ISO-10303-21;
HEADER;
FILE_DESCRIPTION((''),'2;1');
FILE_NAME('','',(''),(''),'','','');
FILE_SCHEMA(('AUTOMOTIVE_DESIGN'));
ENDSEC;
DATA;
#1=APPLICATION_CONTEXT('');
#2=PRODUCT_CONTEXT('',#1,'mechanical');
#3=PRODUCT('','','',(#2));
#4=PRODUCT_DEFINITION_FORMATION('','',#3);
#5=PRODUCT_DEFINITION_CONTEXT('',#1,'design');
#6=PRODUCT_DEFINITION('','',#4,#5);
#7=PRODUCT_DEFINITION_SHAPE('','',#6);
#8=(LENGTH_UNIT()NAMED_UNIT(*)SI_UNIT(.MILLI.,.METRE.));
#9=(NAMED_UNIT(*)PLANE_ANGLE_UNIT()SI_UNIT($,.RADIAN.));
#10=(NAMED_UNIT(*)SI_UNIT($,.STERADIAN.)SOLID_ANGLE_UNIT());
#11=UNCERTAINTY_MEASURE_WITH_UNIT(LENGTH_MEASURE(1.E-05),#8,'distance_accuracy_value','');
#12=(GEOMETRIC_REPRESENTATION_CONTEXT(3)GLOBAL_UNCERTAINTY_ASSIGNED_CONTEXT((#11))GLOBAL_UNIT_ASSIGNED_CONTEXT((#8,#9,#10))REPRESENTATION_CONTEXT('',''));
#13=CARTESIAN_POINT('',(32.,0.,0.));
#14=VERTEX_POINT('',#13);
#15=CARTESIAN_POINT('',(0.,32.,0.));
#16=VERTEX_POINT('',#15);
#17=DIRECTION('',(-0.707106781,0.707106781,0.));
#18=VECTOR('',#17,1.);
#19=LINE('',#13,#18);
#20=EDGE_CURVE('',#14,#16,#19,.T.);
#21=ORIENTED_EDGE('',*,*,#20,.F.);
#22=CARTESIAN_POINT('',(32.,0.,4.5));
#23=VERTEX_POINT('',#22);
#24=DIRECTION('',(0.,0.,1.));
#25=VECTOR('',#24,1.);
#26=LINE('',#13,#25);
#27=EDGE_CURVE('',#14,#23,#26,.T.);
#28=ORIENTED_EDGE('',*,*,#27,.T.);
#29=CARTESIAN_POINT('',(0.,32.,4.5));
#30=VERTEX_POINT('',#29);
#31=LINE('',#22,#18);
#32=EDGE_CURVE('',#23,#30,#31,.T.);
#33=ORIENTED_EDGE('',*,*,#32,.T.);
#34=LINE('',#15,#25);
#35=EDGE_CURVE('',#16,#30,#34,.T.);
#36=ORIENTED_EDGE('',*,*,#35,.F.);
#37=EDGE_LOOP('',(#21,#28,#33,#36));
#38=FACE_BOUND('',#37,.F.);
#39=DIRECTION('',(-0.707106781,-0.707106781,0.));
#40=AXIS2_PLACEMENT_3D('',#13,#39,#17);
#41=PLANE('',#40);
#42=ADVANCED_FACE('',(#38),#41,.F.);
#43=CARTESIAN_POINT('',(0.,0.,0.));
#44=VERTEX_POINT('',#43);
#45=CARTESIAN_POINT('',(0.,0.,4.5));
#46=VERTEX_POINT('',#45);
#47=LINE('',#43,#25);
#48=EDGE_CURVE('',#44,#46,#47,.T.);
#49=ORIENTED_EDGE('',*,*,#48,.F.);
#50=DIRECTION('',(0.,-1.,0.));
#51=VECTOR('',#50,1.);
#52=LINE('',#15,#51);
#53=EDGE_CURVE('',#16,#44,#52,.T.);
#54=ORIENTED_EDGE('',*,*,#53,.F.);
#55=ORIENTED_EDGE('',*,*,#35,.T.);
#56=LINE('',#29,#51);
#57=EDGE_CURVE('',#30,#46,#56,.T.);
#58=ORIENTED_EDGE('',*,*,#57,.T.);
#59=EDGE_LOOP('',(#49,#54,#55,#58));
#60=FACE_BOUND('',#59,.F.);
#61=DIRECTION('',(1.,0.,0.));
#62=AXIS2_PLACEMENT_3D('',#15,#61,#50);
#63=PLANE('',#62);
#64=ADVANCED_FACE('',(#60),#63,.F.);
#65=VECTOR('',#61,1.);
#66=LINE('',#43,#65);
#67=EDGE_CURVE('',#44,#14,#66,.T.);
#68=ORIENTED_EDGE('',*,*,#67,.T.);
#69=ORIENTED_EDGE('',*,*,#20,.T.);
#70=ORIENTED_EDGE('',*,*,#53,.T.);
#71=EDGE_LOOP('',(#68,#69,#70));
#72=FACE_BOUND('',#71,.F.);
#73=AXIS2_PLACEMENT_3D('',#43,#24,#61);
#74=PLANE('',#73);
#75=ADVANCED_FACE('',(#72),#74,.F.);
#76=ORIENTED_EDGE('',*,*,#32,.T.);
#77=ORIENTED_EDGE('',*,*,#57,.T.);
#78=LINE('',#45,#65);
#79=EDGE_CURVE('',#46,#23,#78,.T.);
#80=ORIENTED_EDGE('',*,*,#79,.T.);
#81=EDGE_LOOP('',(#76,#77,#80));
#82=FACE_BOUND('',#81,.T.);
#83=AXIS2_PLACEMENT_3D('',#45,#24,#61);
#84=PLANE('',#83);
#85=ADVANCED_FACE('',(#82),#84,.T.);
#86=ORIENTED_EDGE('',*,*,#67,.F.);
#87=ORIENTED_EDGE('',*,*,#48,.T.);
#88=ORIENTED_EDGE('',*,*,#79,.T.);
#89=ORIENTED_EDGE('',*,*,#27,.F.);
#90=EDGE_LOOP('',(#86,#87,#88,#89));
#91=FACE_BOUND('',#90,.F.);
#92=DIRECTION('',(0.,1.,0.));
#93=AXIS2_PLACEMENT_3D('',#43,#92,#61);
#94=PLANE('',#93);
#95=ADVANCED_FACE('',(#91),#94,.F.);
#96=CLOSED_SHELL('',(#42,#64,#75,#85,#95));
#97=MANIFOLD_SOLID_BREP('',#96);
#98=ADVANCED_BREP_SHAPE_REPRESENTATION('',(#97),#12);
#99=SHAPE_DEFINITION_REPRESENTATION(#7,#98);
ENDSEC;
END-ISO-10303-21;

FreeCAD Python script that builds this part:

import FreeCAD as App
import Part
import Sketcher
Q = App.Units.Quantity

doc = App.newDocument("Part")
body = doc.addObject("PartDesign::Body", "Body")

# Sketch on XY plane
sketch1 = body.newObject("Sketcher::SketchObject", "Sketch")
sketch1.AttachmentSupport = (doc.getObject("XY_Plane"), [""])
sketch1.MapMode = "FlatFace"
sketch1.addGeometry([
    Part.LineSegment(App.Vector(0, 32, 0), App.Vector(0, 0, 0)),
    Part.LineSegment(App.Vector(0, 0, 0), App.Vector(32, 0, 0)),
    Part.LineSegment(App.Vector(32, 0, 0), App.Vector(0, 32, 0)),
], False)
sketch1.addConstraint([
    Sketcher.Constraint("Coincident", 0, 2, 1, 1),
    Sketcher.Constraint("Coincident", 1, 2, 2, 1),
    Sketcher.Constraint("Coincident", 2, 2, 0, 1),
    Sketcher.Constraint("Vertical", 0),
    Sketcher.Constraint("Horizontal", 1),
    Sketcher.Constraint("Coincident", 0, 2, -1, 1),
    Sketcher.Constraint("Equal", 1, 0),
    Sketcher.Constraint("DistanceX", 1, 1, 1, 2, Q("32 mm")),
])
pad1 = body.newObject("PartDesign::Pad", "Pad")
pad1.Profile = sketch1
pad1.Length = 4.5

doc.recompute()
